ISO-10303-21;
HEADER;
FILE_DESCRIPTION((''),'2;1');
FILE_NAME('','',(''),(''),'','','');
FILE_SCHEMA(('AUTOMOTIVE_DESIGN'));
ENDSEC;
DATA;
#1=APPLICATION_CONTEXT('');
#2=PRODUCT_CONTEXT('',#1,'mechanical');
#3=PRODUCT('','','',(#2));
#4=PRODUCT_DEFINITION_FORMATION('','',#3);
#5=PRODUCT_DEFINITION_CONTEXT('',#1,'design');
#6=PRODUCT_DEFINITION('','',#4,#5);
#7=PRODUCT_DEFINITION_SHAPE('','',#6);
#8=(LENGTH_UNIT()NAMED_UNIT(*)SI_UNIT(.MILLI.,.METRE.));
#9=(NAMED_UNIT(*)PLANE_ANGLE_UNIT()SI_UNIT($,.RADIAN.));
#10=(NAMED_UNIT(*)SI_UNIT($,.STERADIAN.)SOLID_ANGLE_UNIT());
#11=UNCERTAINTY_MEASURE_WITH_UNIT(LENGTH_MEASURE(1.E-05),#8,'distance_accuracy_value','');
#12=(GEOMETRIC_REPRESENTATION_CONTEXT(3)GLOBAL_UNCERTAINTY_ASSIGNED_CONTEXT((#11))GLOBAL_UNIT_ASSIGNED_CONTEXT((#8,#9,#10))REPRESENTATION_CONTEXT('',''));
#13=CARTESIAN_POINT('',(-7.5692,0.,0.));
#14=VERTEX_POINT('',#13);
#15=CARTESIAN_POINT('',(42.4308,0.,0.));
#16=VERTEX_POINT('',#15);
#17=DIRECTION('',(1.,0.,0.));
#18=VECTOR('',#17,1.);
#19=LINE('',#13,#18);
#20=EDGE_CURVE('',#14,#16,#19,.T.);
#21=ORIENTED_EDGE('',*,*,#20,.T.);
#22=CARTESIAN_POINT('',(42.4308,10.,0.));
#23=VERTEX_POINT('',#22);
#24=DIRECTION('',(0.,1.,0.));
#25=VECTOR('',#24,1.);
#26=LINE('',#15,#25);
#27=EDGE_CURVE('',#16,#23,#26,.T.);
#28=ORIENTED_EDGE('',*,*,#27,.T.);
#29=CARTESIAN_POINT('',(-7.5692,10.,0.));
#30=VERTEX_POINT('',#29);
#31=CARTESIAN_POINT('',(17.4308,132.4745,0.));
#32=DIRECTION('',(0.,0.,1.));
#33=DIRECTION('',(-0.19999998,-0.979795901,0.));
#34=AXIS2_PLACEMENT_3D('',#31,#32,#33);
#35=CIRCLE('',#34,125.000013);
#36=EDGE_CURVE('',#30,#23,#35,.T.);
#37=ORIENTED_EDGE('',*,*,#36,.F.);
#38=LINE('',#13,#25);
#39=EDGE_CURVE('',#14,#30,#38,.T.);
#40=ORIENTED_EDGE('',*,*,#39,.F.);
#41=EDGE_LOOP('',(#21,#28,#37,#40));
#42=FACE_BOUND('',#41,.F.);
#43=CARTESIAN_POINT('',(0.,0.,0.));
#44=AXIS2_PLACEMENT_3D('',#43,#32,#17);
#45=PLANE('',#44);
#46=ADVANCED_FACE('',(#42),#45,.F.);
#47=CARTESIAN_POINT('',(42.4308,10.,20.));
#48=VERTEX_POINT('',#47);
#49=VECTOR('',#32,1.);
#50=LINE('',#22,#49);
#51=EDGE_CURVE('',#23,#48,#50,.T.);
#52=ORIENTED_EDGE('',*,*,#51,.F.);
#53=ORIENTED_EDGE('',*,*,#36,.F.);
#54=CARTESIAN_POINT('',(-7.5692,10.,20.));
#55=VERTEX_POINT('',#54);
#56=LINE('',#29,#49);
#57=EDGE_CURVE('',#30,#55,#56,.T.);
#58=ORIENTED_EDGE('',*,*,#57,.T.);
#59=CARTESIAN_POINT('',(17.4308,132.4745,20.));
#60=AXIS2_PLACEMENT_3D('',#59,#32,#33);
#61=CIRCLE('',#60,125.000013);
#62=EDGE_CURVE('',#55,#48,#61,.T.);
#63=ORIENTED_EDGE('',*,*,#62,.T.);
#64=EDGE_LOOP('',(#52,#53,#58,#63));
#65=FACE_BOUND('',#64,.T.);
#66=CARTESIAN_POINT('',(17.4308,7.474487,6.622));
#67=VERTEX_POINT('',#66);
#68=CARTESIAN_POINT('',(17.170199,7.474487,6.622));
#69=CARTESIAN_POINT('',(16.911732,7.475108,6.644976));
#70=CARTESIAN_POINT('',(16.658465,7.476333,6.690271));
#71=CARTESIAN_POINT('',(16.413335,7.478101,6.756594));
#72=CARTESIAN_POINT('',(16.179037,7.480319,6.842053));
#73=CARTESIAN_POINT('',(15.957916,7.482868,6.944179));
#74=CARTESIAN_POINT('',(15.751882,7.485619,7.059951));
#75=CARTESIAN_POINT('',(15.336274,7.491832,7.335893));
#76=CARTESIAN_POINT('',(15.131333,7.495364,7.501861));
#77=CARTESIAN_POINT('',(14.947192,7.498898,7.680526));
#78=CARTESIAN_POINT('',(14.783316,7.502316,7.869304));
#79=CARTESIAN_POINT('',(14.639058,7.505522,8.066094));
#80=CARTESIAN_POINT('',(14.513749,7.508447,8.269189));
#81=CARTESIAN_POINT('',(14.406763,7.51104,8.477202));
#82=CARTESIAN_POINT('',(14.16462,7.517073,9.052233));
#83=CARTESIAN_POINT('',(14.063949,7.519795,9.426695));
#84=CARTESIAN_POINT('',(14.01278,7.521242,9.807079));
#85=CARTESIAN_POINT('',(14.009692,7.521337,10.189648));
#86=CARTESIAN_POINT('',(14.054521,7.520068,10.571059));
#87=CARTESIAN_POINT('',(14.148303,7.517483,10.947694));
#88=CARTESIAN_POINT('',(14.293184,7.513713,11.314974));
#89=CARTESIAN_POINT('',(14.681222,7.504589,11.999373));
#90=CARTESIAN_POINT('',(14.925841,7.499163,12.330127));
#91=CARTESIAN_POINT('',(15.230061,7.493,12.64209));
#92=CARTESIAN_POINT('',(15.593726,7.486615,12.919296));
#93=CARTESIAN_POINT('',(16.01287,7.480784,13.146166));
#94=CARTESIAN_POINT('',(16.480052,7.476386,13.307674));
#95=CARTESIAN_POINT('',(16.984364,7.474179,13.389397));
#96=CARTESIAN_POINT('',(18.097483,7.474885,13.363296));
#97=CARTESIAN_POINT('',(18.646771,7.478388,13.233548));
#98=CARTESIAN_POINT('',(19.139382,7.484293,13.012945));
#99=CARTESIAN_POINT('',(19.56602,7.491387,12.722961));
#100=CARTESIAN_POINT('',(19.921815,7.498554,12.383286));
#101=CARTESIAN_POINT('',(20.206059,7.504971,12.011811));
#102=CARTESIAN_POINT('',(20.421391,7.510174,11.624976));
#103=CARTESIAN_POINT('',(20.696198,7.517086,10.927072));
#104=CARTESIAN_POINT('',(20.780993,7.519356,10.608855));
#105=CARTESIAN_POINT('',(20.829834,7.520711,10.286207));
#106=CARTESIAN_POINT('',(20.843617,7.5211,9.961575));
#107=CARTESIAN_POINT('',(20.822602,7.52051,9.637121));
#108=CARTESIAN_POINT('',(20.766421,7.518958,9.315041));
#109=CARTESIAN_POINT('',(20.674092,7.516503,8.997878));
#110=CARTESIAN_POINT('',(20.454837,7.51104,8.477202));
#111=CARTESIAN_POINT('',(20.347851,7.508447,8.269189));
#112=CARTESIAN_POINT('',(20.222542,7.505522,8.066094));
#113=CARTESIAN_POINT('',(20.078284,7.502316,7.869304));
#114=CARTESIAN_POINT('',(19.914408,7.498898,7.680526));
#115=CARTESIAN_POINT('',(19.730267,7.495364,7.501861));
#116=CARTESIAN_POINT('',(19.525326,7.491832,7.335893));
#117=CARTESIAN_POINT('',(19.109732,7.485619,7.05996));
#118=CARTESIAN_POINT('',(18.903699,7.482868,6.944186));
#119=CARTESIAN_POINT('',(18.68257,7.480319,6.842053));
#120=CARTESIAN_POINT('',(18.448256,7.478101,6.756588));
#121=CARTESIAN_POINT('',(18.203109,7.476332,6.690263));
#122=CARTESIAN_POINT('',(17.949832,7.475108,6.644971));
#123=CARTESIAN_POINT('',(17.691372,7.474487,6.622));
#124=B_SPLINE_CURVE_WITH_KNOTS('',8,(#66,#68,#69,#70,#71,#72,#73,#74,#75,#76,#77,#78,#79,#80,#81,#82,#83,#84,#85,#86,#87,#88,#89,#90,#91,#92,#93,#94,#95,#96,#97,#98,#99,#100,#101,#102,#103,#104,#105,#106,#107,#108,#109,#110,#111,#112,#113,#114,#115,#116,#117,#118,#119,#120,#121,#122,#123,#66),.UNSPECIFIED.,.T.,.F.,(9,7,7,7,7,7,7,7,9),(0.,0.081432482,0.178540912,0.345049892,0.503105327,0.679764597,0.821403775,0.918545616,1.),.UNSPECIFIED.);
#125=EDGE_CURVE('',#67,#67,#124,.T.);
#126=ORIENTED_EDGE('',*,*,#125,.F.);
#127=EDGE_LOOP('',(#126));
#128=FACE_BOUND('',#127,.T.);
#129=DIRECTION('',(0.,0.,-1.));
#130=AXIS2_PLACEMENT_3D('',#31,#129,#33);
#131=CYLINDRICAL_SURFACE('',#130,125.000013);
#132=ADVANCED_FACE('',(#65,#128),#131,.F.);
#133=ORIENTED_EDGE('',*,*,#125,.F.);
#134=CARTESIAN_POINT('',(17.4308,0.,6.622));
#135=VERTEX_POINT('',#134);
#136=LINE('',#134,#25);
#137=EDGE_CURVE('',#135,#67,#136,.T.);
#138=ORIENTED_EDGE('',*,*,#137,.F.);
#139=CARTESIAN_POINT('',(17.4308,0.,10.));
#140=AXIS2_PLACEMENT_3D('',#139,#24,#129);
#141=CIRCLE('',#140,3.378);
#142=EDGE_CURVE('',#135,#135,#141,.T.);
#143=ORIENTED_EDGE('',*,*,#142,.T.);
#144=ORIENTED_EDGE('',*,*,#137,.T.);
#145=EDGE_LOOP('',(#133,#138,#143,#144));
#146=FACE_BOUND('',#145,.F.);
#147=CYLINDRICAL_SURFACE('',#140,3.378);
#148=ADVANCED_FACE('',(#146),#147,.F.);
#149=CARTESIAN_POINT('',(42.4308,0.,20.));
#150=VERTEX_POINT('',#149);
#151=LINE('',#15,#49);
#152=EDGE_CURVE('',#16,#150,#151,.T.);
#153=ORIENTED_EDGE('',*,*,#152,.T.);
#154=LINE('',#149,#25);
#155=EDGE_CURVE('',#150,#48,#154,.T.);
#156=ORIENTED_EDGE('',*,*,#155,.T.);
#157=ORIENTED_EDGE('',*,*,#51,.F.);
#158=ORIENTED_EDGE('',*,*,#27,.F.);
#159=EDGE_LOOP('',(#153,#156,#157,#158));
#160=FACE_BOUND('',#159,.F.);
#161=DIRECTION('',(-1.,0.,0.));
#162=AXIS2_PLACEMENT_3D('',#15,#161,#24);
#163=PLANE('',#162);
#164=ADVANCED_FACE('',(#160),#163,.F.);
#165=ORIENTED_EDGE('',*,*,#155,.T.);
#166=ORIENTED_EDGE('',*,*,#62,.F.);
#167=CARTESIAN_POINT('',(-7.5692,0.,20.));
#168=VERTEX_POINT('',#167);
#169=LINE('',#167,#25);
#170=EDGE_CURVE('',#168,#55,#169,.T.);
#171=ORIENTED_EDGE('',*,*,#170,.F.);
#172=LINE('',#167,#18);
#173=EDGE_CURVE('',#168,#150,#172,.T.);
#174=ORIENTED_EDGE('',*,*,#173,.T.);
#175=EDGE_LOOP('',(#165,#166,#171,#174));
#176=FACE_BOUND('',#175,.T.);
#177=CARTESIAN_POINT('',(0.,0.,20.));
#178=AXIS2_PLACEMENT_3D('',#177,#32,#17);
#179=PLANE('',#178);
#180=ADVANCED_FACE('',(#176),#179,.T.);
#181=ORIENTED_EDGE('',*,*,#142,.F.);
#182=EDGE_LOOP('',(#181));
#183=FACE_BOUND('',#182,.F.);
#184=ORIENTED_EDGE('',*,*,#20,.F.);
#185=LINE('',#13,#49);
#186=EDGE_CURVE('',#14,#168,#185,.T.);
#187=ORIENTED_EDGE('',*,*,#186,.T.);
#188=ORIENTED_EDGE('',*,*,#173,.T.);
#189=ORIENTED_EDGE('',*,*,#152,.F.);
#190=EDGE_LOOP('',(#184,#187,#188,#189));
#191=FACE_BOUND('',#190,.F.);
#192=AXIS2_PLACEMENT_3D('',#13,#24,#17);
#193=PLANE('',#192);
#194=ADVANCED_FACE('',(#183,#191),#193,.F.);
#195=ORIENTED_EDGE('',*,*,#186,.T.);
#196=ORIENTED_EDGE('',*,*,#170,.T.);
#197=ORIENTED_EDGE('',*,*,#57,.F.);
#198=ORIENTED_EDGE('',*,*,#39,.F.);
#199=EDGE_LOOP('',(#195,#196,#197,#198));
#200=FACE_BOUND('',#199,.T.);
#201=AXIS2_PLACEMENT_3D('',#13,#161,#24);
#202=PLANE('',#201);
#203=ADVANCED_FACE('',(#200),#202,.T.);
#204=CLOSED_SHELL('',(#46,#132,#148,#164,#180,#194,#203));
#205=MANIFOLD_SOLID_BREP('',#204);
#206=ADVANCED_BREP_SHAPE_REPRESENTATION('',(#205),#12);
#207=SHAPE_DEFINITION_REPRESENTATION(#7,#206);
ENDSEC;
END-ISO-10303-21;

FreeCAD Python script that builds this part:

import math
import FreeCAD as App
import Part
import Sketcher

doc = App.newDocument("Part")
body = doc.addObject("PartDesign::Body", "Body")

# Sketch on XY plane
sketch1 = doc.addObject("Sketcher::SketchObject", "Sketch")
body.addObject(sketch1)
sketch1.AttachmentSupport = (doc.XY_Plane, [""])
sketch1.MapMode = "FlatFace"
sketch1.addGeometry(Part.LineSegment(App.Vector(-8, 10, 0), App.Vector(-8, 0, 0)), False)
sketch1.addGeometry(Part.LineSegment(App.Vector(-8, 0, 0), App.Vector(42, 0, 0)), False)
sketch1.addGeometry(Part.LineSegment(App.Vector(42, 0, 0), App.Vector(42, 10, 0)), False)
sketch1.addGeometry(Part.ArcOfCircle(Part.Circle(App.Vector(17, 132, 0), App.Vector(0, 0, 1), 125), math.radians(-102), math.radians(-78)), False)
sketch1.addConstraint(Sketcher.Constraint("Coincident", 0, 2, 1, 1))
sketch1.addConstraint(Sketcher.Constraint("Coincident", 1, 2, 2, 1))
sketch1.addConstraint(Sketcher.Constraint("Coincident", 2, 2, 3, 2))
sketch1.addConstraint(Sketcher.Constraint("Coincident", 3, 1, 0, 1))
sketch1.addConstraint(Sketcher.Constraint("Vertical", 0))
sketch1.addConstraint(Sketcher.Constraint("Horizontal", 1))
sketch1.addConstraint(Sketcher.Constraint("Vertical", 2))
sketch1.addConstraint(Sketcher.Constraint("PointOnObject", 0, 2, -1))
sketch1.addConstraint(Sketcher.Constraint("Horizontal", 2, 2, 3, 1))
sketch1.addConstraint(Sketcher.Constraint("Radius", 3, 125.0))
sketch1.addConstraint(Sketcher.Constraint("DistanceX", 1, 1, 1, 2, 50.0))
sketch1.addConstraint(Sketcher.Constraint("DistanceY", 0, 2, 0, 1, 10.0))
sketch1.addConstraint(Sketcher.Constraint("DistanceX", -1, 1, 3, 3, 17.4308))
pad1 = doc.addObject("PartDesign::Pad", "Pad")
body.addObject(pad1)
pad1.Profile = sketch1
pad1.Length = 20

# Sketch on XZ plane
sketch2 = doc.addObject("Sketcher::SketchObject", "Sketch001")
body.addObject(sketch2)
sketch2.AttachmentSupport = (doc.XZ_Plane, [""])
sketch2.MapMode = "FlatFace"
sketch2.addGeometry(Part.Circle(App.Vector(17.4, 10, 0), App.Vector(0, 0, 1), 3.4), False)
sketch2.addConstraint(Sketcher.Constraint("Diameter", 0, 6.756))
sketch2.addConstraint(Sketcher.Constraint("DistanceY", -1, 1, 0, 3, 10.0))
sketch2.addConstraint(Sketcher.Constraint("DistanceX", -1, 1, 0, 3, 17.4308))
doc.recompute()
hole = doc.addObject("PartDesign::Hole", "Hole")
body.addObject(hole)
hole.Profile = sketch2
hole.ThreadType = "None"
hole.Diameter = 6.756
hole.DepthType = "ThroughAll"

doc.recompute()
